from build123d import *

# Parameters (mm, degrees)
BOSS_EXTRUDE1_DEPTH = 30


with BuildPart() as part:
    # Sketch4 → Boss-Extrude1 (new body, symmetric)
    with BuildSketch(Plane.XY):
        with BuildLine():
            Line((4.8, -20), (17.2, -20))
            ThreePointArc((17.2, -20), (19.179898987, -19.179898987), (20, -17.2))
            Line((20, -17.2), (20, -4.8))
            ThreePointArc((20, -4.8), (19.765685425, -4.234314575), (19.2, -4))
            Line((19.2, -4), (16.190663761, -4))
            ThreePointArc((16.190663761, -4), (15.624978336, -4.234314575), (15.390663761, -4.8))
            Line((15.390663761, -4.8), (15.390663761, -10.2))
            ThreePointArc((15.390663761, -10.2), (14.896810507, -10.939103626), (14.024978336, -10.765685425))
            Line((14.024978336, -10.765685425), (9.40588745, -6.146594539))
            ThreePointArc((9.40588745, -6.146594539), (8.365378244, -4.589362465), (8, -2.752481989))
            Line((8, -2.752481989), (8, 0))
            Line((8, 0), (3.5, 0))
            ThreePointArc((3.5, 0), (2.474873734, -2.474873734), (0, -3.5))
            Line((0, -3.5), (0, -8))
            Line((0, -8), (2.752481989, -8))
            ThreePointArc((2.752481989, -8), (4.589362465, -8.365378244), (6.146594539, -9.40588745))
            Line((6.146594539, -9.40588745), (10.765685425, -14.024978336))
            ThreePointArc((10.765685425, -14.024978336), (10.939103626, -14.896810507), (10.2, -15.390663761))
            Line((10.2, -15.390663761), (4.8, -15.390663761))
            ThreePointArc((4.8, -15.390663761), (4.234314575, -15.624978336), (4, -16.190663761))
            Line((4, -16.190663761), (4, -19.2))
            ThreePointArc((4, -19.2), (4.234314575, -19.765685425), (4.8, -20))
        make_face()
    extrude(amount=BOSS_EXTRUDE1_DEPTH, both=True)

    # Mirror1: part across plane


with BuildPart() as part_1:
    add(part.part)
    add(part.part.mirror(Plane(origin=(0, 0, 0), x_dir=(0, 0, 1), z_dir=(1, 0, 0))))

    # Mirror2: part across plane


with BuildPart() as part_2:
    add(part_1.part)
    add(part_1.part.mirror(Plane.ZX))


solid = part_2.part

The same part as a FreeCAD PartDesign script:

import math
import FreeCAD as App
import Part
import Sketcher

V = App.Vector
Q = App.Units.Quantity

doc = App.newDocument("Part")
body = doc.addObject("PartDesign::Body", "Body")

# Sketch on XY plane
sketch1 = doc.addObject("Sketcher::SketchObject", "Sketch")
body.addObject(sketch1)
sketch1.AttachmentSupport = (doc.XY_Plane, [""])
sketch1.MapMode = "FlatFace"
sketch1.addGeometry([
    Part.LineSegment(V(4.8, -20, 0), V(17.2, -20, 0)),  # 0
    Part.ArcOfCircle(Part.Circle(V(17.2, -17.2, 0), V(0, 0, 1), 2.8), math.radians(-90), math.radians(0)),  # 1
    Part.LineSegment(V(20, -17.2, 0), V(20, -4.8, 0)),  # 2
    Part.ArcOfCircle(Part.Circle(V(19.2, -4.8, 0), V(0, 0, 1), 0.8), math.radians(0), math.radians(90)),  # 3
    Part.LineSegment(V(19.2, -4, 0), V(16.190664, -4, 0)),  # 4
    Part.ArcOfCircle(Part.Circle(V(16.190664, -4.8, 0), V(0, 0, 1), 0.8), math.radians(90), math.radians(180)),  # 5
    Part.LineSegment(V(15.390664, -4.8, 0), V(15.390664, -10.2, 0)),  # 6
    Part.ArcOfCircle(Part.Circle(V(14.590664, -10.2, 0), V(0, 0, 1), 0.8), math.radians(-135), math.radians(0)),  # 7
    Part.LineSegment(V(14.024978, -10.765685, 0), V(9.405887, -6.146595, 0)),  # 8
    Part.ArcOfCircle(Part.Circle(V(12.8, -2.752482, 0), V(0, 0, 1), 4.8), math.radians(180), math.radians(225)),  # 9
    Part.LineSegment(V(8, -2.752482, 0), V(8, 0, 0)),  # 10
    Part.LineSegment(V(8, 0, 0), V(3.5, 0, 0)),  # 11
    Part.ArcOfCircle(Part.Circle(V(0, 0, 0), V(0, 0, 1), 3.5), math.radians(-90), math.radians(0)),  # 12
    Part.LineSegment(V(0, -3.5, 0), V(0, -8, 0)),  # 13
    Part.LineSegment(V(0, -8, 0), V(2.752482, -8, 0)),  # 14
    Part.ArcOfCircle(Part.Circle(V(2.752482, -12.8, 0), V(0, 0, 1), 4.8), math.radians(45), math.radians(90)),  # 15
    Part.LineSegment(V(6.146595, -9.405887, 0), V(10.765685, -14.024978, 0)),  # 16
    Part.ArcOfCircle(Part.Circle(V(10.2, -14.590664, 0), V(0, 0, 1), 0.8), math.radians(-90), math.radians(45)),  # 17
    Part.LineSegment(V(10.2, -15.390664, 0), V(4.8, -15.390664, 0)),  # 18
    Part.ArcOfCircle(Part.Circle(V(4.8, -16.190664, 0), V(0, 0, 1), 0.8), math.radians(90), math.radians(180)),  # 19
    Part.LineSegment(V(4, -16.190664, 0), V(4, -19.2, 0)),  # 20
    Part.ArcOfCircle(Part.Circle(V(4.8, -19.2, 0), V(0, 0, 1), 0.8), math.radians(180), math.radians(270)),  # 21
], False)
sketch1.addConstraint([
    Sketcher.Constraint("Tangent", 0, 2, 1, 1),
    Sketcher.Constraint("Tangent", 1, 2, 2, 1),
    Sketcher.Constraint("Tangent", 2, 2, 3, 1),
    Sketcher.Constraint("Tangent", 3, 2, 4, 1),
    Sketcher.Constraint("Tangent", 4, 2, 5, 1),
    Sketcher.Constraint("Tangent", 5, 2, 6, 1),
    Sketcher.Constraint("Tangent", 6, 2, 7, 2),
    Sketcher.Constraint("Tangent", 7, 1, 8, 1),
    Sketcher.Constraint("Tangent", 8, 2, 9, 2),
    Sketcher.Constraint("Tangent", 9, 1, 10, 1),
    Sketcher.Constraint("Coincident", 10, 2, 11, 1),
    Sketcher.Constraint("Coincident", 11, 2, 12, 2),
    Sketcher.Constraint("Coincident", 12, 1, 13, 1),
    Sketcher.Constraint("Coincident", 13, 2, 14, 1),
    Sketcher.Constraint("Tangent", 14, 2, 15, 2),
    Sketcher.Constraint("Tangent", 15, 1, 16, 1),
    Sketcher.Constraint("Tangent", 16, 2, 17, 2),
    Sketcher.Constraint("Tangent", 17, 1, 18, 1),
    Sketcher.Constraint("Tangent", 18, 2, 19, 1),
    Sketcher.Constraint("Tangent", 19, 2, 20, 1),
    Sketcher.Constraint("Tangent", 20, 2, 21, 1),
    Sketcher.Constraint("Tangent", 21, 2, 0, 1),
    Sketcher.Constraint("Horizontal", 0),
    Sketcher.Constraint("Vertical", 2),
    Sketcher.Constraint("Horizontal", 4),
    Sketcher.Constraint("Vertical", 6),
    Sketcher.Constraint("Vertical", 10),
    Sketcher.Constraint("Horizontal", 11),
    Sketcher.Constraint("Vertical", 13),
    Sketcher.Constraint("Horizontal", 14),
    Sketcher.Constraint("Horizontal", 18),
    Sketcher.Constraint("Vertical", 20),
    Sketcher.Constraint("Coincident", 12, 3, -1, 1),
    Sketcher.Constraint("Equal", 3, 5),
    Sketcher.Constraint("Equal", 5, 7),
    Sketcher.Constraint("Equal", 9, 15),
    Sketcher.Constraint("Equal", 7, 17),
    Sketcher.Constraint("Equal", 17, 19),
    Sketcher.Constraint("Equal", 19, 21),
    Sketcher.Constraint("PointOnObject", 10, 2, -1),
    Sketcher.Constraint("PointOnObject", 12, 1, -2),
    Sketcher.Constraint("Parallel", 8, 16),
    Sketcher.Constraint("Equal", 0, 2),
    Sketcher.Constraint("Equal", 18, 6),
    Sketcher.Constraint("Equal", 14, 10),
    Sketcher.Constraint("Equal", 11, 13),
    Sketcher.Constraint("Equal", 4, 20),
    Sketcher.Constraint("Equal", 8, 16),
    Sketcher.Constraint("Radius", 1, Q("2.8 mm")),
    Sketcher.Constraint("Radius", 3, Q("0.8 mm")),
    Sketcher.Constraint("Radius", 9, Q("4.8 mm")),
    Sketcher.Constraint("Radius", 12, Q("3.5 mm")),
    Sketcher.Constraint("DistanceX", 0, 1, 0, 2, Q("12.4 mm")),
    Sketcher.Constraint("DistanceX", 11, 2, 11, 1, Q("4.5 mm")),
    Sketcher.Constraint("DistanceX", 18, 2, 18, 1, Q("5.4 mm")),
    Sketcher.Constraint("DistanceY", 0, 2, -1, 1, Q("20 mm")),
    Sketcher.Constraint("DistanceX", 14, 1, 14, 2, Q("2.752482 mm")),
])
pad1 = doc.addObject("PartDesign::Pad", "Pad")
body.addObject(pad1)
pad1.Profile = sketch1
pad1.Length = 60
pad1.Midplane = True
body2 = doc.addObject("PartDesign::Body", "Body001")
doc.recompute()

body2.BaseFeature = body
doc.recompute()

mirroring = doc.addObject("Part::Mirroring", "Mirroring")
mirroring.Source = body
mirroring.Base = V(0, 0, 0)
mirroring.Normal = V(1, 0, 0)
body3 = doc.addObject("PartDesign::Body", "Body002")
body3.BaseFeature = mirroring
boolean = doc.addObject("PartDesign::Boolean", "Boolean")
body2.addObject(boolean)
boolean.Type = "Fuse"
boolean.addObjects([body3])
doc.recompute()
body4 = doc.addObject("PartDesign::Body", "Body003")
doc.recompute()

body4.BaseFeature = body2
doc.recompute()

mirroring2 = doc.addObject("Part::Mirroring", "Mirroring001")
mirroring2.Source = body2
mirroring2.Base = V(0, 0, 0)
mirroring2.Normal = V(0, 1, 0)
body5 = doc.addObject("PartDesign::Body", "Body004")
body5.BaseFeature = mirroring2
boolean2 = doc.addObject("PartDesign::Boolean", "Boolean001")
body4.addObject(boolean2)
boolean2.Type = "Fuse"
boolean2.addObjects([body5])
doc.recompute()
mirroring.Visibility = False
mirroring2.Visibility = False

doc.recompute()
